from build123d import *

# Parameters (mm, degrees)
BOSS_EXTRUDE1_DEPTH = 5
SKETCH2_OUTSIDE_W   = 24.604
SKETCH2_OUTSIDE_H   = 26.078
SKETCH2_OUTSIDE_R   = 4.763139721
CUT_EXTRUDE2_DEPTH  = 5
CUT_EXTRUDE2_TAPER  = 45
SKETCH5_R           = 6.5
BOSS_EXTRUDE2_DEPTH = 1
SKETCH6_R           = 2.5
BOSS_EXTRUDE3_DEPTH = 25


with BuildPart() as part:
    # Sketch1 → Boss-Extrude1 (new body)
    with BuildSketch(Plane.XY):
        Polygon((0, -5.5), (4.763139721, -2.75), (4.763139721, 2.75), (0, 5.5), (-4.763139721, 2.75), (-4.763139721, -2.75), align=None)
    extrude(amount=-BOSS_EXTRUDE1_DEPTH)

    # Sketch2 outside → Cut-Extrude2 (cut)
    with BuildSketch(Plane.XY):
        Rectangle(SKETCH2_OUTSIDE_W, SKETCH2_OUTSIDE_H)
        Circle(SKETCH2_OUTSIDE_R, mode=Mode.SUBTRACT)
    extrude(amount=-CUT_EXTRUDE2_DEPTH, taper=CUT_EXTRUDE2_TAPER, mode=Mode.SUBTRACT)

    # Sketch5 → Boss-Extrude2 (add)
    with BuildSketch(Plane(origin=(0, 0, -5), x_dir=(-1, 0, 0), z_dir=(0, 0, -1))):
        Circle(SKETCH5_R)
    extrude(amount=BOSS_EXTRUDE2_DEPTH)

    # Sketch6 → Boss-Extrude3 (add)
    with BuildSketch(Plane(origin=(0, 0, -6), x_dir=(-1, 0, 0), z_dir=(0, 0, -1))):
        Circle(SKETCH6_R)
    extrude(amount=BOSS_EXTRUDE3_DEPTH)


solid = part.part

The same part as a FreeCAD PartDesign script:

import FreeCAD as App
import Part
import Sketcher
from FreeCAD import Vector
Q = App.Units.Quantity

doc = App.newDocument("Part")
params = doc.addObject("Spreadsheet::Sheet", "Params")
for row, (alias, value) in enumerate([
    ("sketch1_height", "5.5 mm"),
    ("pad1_length", "5 mm"),
    ("pocket1_length", "5 mm"),
    ("pocket1_taper", "45 deg"),
    ("sketch3_diameter", "13 mm"),
    ("pad2_length", "1 mm"),
    ("sketch4_diameter", "5 mm"),
    ("pad3_length", "25 mm"),
], start=1):
    params.set(f"A{row}", alias)
    params.set(f"B{row}", "=" + value)
    params.setAlias(f"B{row}", alias)

body = doc.addObject("PartDesign::Body", "Body")

sketch1 = body.newObject("Sketcher::SketchObject", "Sketch")
sketch1.AttachmentSupport = (doc.getObject("XY_Plane"), [""])
sketch1.MapMode = "FlatFace"
sketch1.addGeometry(Part.LineSegment(Vector(0, -6, 0), Vector(5, -3, 0)), False)
sketch1.addGeometry(Part.LineSegment(Vector(5, -3, 0), Vector(5, 3, 0)), False)
sketch1.addGeometry(Part.LineSegment(Vector(5, 3, 0), Vector(0, 6, 0)), False)
sketch1.addGeometry(Part.LineSegment(Vector(0, 6, 0), Vector(-5, 3, 0)), False)
sketch1.addGeometry(Part.LineSegment(Vector(-5, 3, 0), Vector(-5, -3, 0)), False)
sketch1.addGeometry(Part.LineSegment(Vector(-5, -3, 0), Vector(0, -6, 0)), False)
sketch1.addConstraint(Sketcher.Constraint("Coincident", 0, 2, 1, 1))
sketch1.addConstraint(Sketcher.Constraint("Coincident", 1, 2, 2, 1))
sketch1.addConstraint(Sketcher.Constraint("Coincident", 2, 2, 3, 1))
sketch1.addConstraint(Sketcher.Constraint("Coincident", 3, 2, 4, 1))
sketch1.addConstraint(Sketcher.Constraint("Coincident", 4, 2, 5, 1))
sketch1.addConstraint(Sketcher.Constraint("Coincident", 5, 2, 0, 1))
sketch1.addConstraint(Sketcher.Constraint("Vertical", 1))
sketch1.addConstraint(Sketcher.Constraint("Vertical", 4))
sketch1.addConstraint(Sketcher.Constraint("Symmetric", 0, 2, 3, 2, -1, 1))
sketch1.addConstraint(Sketcher.Constraint("Symmetric", 2, 2, 5, 2, -1, 1))
sketch1.addConstraint(Sketcher.Constraint("PointOnObject", 2, 2, -2))
sketch1.addConstraint(Sketcher.Constraint("Parallel", 2, 5))
sketch1.addConstraint(Sketcher.Constraint("Horizontal", 1, 2, 3, 2))
sketch1.addConstraint(Sketcher.Constraint("Angle", 0, Q("30 deg")))
sketch1.addConstraint(Sketcher.Constraint("DistanceY", 1, 1, 1, 2, 5.5))
sketch1.addConstraint(Sketcher.Constraint("DistanceY", 5, 2, 2, 2, 11.0))
sketch1.setExpression("Constraints[14]", "Params.sketch1_height")
pad1 = body.newObject("PartDesign::Pad", "Pad")
pad1.Profile = sketch1
pad1.setExpression("Length", "Params.pad1_length")
pad1.Reversed = True

sketch2 = body.newObject("Sketcher::SketchObject", "Sketch001")
sketch2.AttachmentSupport = (doc.getObject("XY_Plane"), [""])
sketch2.MapMode = "FlatFace"
sketch2.addGeometry(Part.LineSegment(Vector(-12.3, 13, 0), Vector(-12.3, -13, 0)), False)
sketch2.addGeometry(Part.LineSegment(Vector(-12.3, -13, 0), Vector(12.3, -13, 0)), False)
sketch2.addGeometry(Part.LineSegment(Vector(12.3, -13, 0), Vector(12.3, 13, 0)), False)
sketch2.addGeometry(Part.LineSegment(Vector(12.3, 13, 0), Vector(-12.3, 13, 0)), False)
sketch2.addGeometry(Part.Circle(Vector(0, 0, 0), Vector(0, 0, 1), 4.8), False)
sketch2.addConstraint(Sketcher.Constraint("Coincident", 0, 2, 1, 1))
sketch2.addConstraint(Sketcher.Constraint("Coincident", 1, 2, 2, 1))
sketch2.addConstraint(Sketcher.Constraint("Coincident", 2, 2, 3, 1))
sketch2.addConstraint(Sketcher.Constraint("Coincident", 3, 2, 0, 1))
sketch2.addConstraint(Sketcher.Constraint("Vertical", 0))
sketch2.addConstraint(Sketcher.Constraint("Horizontal", 1))
sketch2.addConstraint(Sketcher.Constraint("Vertical", 2))
sketch2.addConstraint(Sketcher.Constraint("Horizontal", 3))
sketch2.addConstraint(Sketcher.Constraint("Coincident", 4, 3, -1, 1))
sketch2.addConstraint(Sketcher.Constraint("Symmetric", 0, 2, 2, 2, -1, 1))
sketch2.addConstraint(Sketcher.Constraint("Diameter", 4, 9.526279))
sketch2.addConstraint(Sketcher.Constraint("DistanceX", 1, 1, 1, 2, 24.604))
sketch2.addConstraint(Sketcher.Constraint("DistanceY", 0, 2, 0, 1, 26.078))
pocket1 = body.newObject("PartDesign::Pocket", "Pocket")
pocket1.Profile = sketch2
pocket1.setExpression("Length", "Params.pocket1_length")
pocket1.setExpression("TaperAngle", "Params.pocket1_taper")

sketch3 = body.newObject("Sketcher::SketchObject", "Sketch002")
sketch3.AttachmentSupport = (doc.getObject("XY_Plane"), [""])
sketch3.MapMode = "FlatFace"
sketch3.AttachmentOffset = App.Placement(Vector(0, 0, -5), App.Rotation())
sketch3.addGeometry(Part.Circle(Vector(0, 0, 0), Vector(0, 0, 1), 6), False)
sketch3.addConstraint(Sketcher.Constraint("Coincident", 0, 3, -1, 1))
sketch3.addConstraint(Sketcher.Constraint("Diameter", 0, 13.0))
sketch3.setExpression("Constraints[1]", "Params.sketch3_diameter")
pad2 = body.newObject("PartDesign::Pad", "Pad001")
pad2.Profile = sketch3
pad2.setExpression("Length", "Params.pad2_length")
pad2.Reversed = True

sketch4 = body.newObject("Sketcher::SketchObject", "Sketch003")
sketch4.AttachmentSupport = (doc.getObject("XY_Plane"), [""])
sketch4.MapMode = "FlatFace"
sketch4.AttachmentOffset = App.Placement(Vector(0, 0, -6), App.Rotation())
sketch4.addGeometry(Part.Circle(Vector(0, 0, 0), Vector(0, 0, 1), 2.5), False)
sketch4.addConstraint(Sketcher.Constraint("Coincident", 0, 3, -1, 1))
sketch4.addConstraint(Sketcher.Constraint("Diameter", 0, 5.0))
sketch4.setExpression("Constraints[1]", "Params.sketch4_diameter")
pad3 = body.newObject("PartDesign::Pad", "Pad002")
pad3.Profile = sketch4
pad3.setExpression("Length", "Params.pad3_length")
pad3.Reversed = True

doc.recompute()
